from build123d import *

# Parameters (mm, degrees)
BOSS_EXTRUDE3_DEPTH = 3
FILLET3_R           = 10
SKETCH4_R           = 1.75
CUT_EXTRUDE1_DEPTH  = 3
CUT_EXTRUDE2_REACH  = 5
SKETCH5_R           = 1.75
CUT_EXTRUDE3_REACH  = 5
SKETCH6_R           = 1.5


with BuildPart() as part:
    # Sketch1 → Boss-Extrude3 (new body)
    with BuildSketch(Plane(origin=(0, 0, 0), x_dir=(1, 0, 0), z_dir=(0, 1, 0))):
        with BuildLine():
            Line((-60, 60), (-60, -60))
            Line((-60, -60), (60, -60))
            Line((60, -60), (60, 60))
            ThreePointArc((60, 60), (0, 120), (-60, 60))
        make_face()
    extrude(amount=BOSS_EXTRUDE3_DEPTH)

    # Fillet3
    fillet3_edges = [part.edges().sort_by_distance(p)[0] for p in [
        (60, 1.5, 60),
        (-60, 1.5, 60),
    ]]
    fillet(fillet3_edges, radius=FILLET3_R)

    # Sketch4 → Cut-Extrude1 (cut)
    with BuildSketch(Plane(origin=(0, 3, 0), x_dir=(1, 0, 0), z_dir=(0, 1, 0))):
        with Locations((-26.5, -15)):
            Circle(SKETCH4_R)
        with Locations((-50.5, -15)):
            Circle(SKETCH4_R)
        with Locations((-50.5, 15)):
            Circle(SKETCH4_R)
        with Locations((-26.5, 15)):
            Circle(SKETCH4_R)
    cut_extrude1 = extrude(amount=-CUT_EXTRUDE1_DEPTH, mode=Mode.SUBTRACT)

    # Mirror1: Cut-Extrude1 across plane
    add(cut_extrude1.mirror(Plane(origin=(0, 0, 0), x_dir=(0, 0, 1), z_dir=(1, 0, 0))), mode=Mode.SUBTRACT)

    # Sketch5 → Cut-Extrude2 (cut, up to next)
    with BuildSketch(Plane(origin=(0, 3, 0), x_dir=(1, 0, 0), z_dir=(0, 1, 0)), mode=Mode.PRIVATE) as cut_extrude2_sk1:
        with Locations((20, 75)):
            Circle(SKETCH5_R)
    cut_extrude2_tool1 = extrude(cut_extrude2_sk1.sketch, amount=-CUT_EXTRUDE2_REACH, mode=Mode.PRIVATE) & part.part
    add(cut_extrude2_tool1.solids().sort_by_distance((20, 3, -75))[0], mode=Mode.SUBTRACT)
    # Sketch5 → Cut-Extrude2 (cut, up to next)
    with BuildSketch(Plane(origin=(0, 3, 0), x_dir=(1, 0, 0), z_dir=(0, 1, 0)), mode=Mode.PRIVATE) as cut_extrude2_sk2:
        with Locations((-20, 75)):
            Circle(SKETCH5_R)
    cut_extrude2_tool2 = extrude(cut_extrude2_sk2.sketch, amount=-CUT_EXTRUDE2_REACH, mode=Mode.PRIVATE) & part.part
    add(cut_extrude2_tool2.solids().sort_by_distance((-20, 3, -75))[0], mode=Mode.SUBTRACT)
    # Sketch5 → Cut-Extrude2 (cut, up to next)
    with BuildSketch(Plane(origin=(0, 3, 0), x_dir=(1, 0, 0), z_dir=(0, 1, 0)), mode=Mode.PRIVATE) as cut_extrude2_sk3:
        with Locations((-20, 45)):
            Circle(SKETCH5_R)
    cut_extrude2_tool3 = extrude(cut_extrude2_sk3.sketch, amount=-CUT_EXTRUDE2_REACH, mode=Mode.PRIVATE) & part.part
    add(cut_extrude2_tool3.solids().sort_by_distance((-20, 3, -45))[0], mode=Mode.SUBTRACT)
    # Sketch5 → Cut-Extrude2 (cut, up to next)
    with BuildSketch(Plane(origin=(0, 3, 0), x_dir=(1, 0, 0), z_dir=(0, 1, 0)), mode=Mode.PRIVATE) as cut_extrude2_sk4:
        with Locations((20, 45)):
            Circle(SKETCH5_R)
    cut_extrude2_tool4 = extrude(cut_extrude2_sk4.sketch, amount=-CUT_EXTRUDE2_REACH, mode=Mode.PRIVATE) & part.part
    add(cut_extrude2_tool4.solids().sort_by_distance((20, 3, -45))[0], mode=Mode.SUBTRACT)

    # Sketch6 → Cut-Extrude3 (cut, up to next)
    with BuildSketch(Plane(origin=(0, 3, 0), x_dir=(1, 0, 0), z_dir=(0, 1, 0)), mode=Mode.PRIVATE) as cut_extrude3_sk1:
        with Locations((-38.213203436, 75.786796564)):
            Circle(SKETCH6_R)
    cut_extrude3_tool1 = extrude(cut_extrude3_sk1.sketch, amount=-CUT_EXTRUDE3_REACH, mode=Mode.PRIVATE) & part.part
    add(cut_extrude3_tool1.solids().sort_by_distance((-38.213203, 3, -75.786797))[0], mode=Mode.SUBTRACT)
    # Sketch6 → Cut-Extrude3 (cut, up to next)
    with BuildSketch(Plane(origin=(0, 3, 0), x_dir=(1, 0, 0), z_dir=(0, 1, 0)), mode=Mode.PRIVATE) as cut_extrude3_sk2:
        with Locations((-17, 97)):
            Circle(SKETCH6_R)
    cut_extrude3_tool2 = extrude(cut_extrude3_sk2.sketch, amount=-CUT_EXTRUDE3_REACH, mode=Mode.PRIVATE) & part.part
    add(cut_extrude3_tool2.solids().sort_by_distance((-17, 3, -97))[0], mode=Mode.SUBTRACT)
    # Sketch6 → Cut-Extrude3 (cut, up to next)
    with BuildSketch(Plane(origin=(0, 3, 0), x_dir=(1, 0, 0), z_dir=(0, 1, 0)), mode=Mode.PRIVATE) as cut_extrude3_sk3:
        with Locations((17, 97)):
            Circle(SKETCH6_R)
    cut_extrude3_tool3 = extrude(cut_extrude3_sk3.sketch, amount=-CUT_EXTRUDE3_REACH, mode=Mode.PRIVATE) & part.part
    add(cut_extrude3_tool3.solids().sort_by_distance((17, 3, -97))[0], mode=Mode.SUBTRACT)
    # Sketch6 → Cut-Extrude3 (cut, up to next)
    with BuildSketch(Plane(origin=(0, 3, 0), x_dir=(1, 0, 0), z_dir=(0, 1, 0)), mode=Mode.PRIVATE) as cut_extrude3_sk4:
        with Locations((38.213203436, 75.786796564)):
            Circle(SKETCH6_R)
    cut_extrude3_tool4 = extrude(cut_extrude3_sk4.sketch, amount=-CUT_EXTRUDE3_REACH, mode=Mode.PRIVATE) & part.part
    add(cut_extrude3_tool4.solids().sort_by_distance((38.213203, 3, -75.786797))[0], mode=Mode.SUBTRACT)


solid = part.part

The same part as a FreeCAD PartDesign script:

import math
import FreeCAD as App
import Part
import Sketcher

V = App.Vector


def edges_at(feature, points):
    """Names of the edges that pass closest to the given points."""
    edges = feature.Shape.Edges
    near = lambda p: min(range(len(edges)), key=lambda i: edges[i].distToShape(Part.Vertex(*p))[0])
    return sorted({f"Edge{near(p) + 1}" for p in points})

doc = App.newDocument("Part")
params = doc.addObject("Spreadsheet::Sheet", "Params")
for row, (alias, value) in enumerate([
    ("sketch1_radius", "60 mm"),
    ("pad1_length", "3 mm"),
    ("fillet_radius", "10 mm"),
    ("sketch2_diameter", "3.5 mm"),
    ("pocket1_length", "3 mm"),
    ("sketch3_diameter", "3.5 mm"),
    ("sketch4_diameter", "3.5 mm"),
    ("sketch5_diameter", "3.5 mm"),
    ("sketch6_diameter", "3.5 mm"),
    ("sketch7_diameter", "3 mm"),
    ("sketch8_diameter", "3 mm"),
    ("sketch9_diameter", "3 mm"),
    ("sketch10_diameter", "3 mm"),
], start=1):
    params.set(f"A{row}", alias)
    params.set(f"B{row}", "=" + value)
    params.setAlias(f"B{row}", alias)

body = doc.addObject("PartDesign::Body", "Body")

sketch1 = body.newObject("Sketcher::SketchObject", "Sketch")
sketch1.AttachmentSupport = (doc.getObject("XZ_Plane"), [""])
sketch1.MapMode = "FlatFace"
sketch1.addGeometry(Part.LineSegment(V(-60, -60, 0), V(-60, 60, 0)), False)
sketch1.addGeometry(Part.LineSegment(V(-60, 60, 0), V(60, 60, 0)), False)
sketch1.addGeometry(Part.LineSegment(V(60, 60, 0), V(60, -60, 0)), False)
sketch1.addGeometry(Part.ArcOfCircle(Part.Circle(V(0, -60, 0), V(0, 0, 1), 60), math.radians(180), math.radians(360)), False)
sketch1.addConstraint(Sketcher.Constraint("Coincident", 0, 2, 1, 1))
sketch1.addConstraint(Sketcher.Constraint("Coincident", 1, 2, 2, 1))
sketch1.addConstraint(Sketcher.Constraint("Tangent", 2, 2, 3, 2))
sketch1.addConstraint(Sketcher.Constraint("Tangent", 3, 1, 0, 1))
sketch1.addConstraint(Sketcher.Constraint("Vertical", 0))
sketch1.addConstraint(Sketcher.Constraint("Horizontal", 1))
sketch1.addConstraint(Sketcher.Constraint("Vertical", 2))
sketch1.addConstraint(Sketcher.Constraint("Symmetric", 0, 2, 2, 2, -1, 1))
sketch1.addConstraint(Sketcher.Constraint("Equal", 1, 0))
sketch1.addConstraint(Sketcher.Constraint("Radius", 3, 60.0))
sketch1.setExpression("Constraints[9]", "Params.sketch1_radius")
pad1 = body.newObject("PartDesign::Pad", "Pad")
pad1.Profile = sketch1
pad1.setExpression("Length", "Params.pad1_length")
pad1.Reversed = True
doc.recompute()

fillet = body.newObject("PartDesign::Fillet", "Fillet")
fillet.Base = (pad1, edges_at(pad1, [(60, 1.5, 60), (-60, 1.5, 60)]))
fillet.setExpression("Radius", "Params.fillet_radius")

sketch2 = body.newObject("Sketcher::SketchObject", "Sketch001")
sketch2.AttachmentSupport = (doc.getObject("XZ_Plane"), [""])
sketch2.MapMode = "FlatFace"
sketch2.AttachmentOffset = App.Placement(V(0, 0, -3), App.Rotation())
sketch2.addGeometry(Part.Circle(V(-26.5, 15, 0), V(0, 0, 1), 1.8), False)
sketch2.addGeometry(Part.Circle(V(-50.5, 15, 0), V(0, 0, 1), 1.8), False)
sketch2.addGeometry(Part.Circle(V(-50.5, -15, 0), V(0, 0, 1), 1.8), False)
sketch2.addGeometry(Part.Circle(V(-26.5, -15, 0), V(0, 0, 1), 1.8), False)
sketch2.addConstraint(Sketcher.Constraint("Equal", 0, 1))
sketch2.addConstraint(Sketcher.Constraint("Equal", 1, 2))
sketch2.addConstraint(Sketcher.Constraint("Equal", 2, 3))
sketch2.addConstraint(Sketcher.Constraint("Symmetric", 1, 3, 2, 3, -1))
sketch2.addConstraint(Sketcher.Constraint("Symmetric", 0, 3, 3, 3, -1))
sketch2.addConstraint(Sketcher.Constraint("Horizontal", 0, 3, 1, 3))
sketch2.addConstraint(Sketcher.Constraint("Diameter", 0, 3.5))
sketch2.addConstraint(Sketcher.Constraint("DistanceY", -1, 1, 0, 3, 15.0))
sketch2.addConstraint(Sketcher.Constraint("DistanceX", 1, 3, 0, 3, 24.0))
sketch2.addConstraint(Sketcher.Constraint("DistanceX", 0, 3, -1, 1, 26.5))
sketch2.setExpression("Constraints[6]", "Params.sketch2_diameter")
pocket1 = body.newObject("PartDesign::Pocket", "Pocket")
pocket1.Profile = sketch2
pocket1.setExpression("Length", "Params.pocket1_length")
pocket1.Reversed = True
doc.recompute()

mirrored = body.newObject("PartDesign::Mirrored", "Mirrored")
mirrored.Originals = [pocket1]
mirrored.MirrorPlane = (doc.getObject("YZ_Plane"), [""])
body.Tip = mirrored

sketch3 = body.newObject("Sketcher::SketchObject", "Sketch002")
sketch3.AttachmentSupport = (doc.getObject("XZ_Plane"), [""])
sketch3.MapMode = "FlatFace"
sketch3.AttachmentOffset = App.Placement(V(0, 0, -3), App.Rotation())
sketch3.addGeometry(Part.Circle(V(20, -75, 0), V(0, 0, 1), 1.8), False)
sketch3.addConstraint(Sketcher.Constraint("Diameter", 0, 3.5))
sketch3.addConstraint(Sketcher.Constraint("DistanceX", -1, 1, 0, 3, 20.0))
sketch3.addConstraint(Sketcher.Constraint("DistanceY", 0, 3, -1, 1, 75.0))
sketch3.setExpression("Constraints[0]", "Params.sketch3_diameter")
pocket2 = body.newObject("PartDesign::Pocket", "Pocket001")
pocket2.Profile = sketch3
pocket2.Type = "UpToFirst"
pocket2.Reversed = True

sketch4 = body.newObject("Sketcher::SketchObject", "Sketch003")
sketch4.AttachmentSupport = (doc.getObject("XZ_Plane"), [""])
sketch4.MapMode = "FlatFace"
sketch4.AttachmentOffset = App.Placement(V(0, 0, -3), App.Rotation())
sketch4.addGeometry(Part.Circle(V(-20, -75, 0), V(0, 0, 1), 1.8), False)
sketch4.addConstraint(Sketcher.Constraint("Diameter", 0, 3.5))
sketch4.addConstraint(Sketcher.Constraint("DistanceX", 0, 3, -1, 1, 20.0))
sketch4.addConstraint(Sketcher.Constraint("DistanceY", 0, 3, -1, 1, 75.0))
sketch4.setExpression("Constraints[0]", "Params.sketch4_diameter")
pocket3 = body.newObject("PartDesign::Pocket", "Pocket002")
pocket3.Profile = sketch4
pocket3.Type = "UpToFirst"
pocket3.Reversed = True

sketch5 = body.newObject("Sketcher::SketchObject", "Sketch004")
sketch5.AttachmentSupport = (doc.getObject("XZ_Plane"), [""])
sketch5.MapMode = "FlatFace"
sketch5.AttachmentOffset = App.Placement(V(0, 0, -3), App.Rotation())
sketch5.addGeometry(Part.Circle(V(-20, -45, 0), V(0, 0, 1), 1.8), False)
sketch5.addConstraint(Sketcher.Constraint("Diameter", 0, 3.5))
sketch5.addConstraint(Sketcher.Constraint("DistanceX", 0, 3, -1, 1, 20.0))
sketch5.addConstraint(Sketcher.Constraint("DistanceY", 0, 3, -1, 1, 45.0))
sketch5.setExpression("Constraints[0]", "Params.sketch5_diameter")
pocket4 = body.newObject("PartDesign::Pocket", "Pocket003")
pocket4.Profile = sketch5
pocket4.Type = "UpToFirst"
pocket4.Reversed = True

sketch6 = body.newObject("Sketcher::SketchObject", "Sketch005")
sketch6.AttachmentSupport = (doc.getObject("XZ_Plane"), [""])
sketch6.MapMode = "FlatFace"
sketch6.AttachmentOffset = App.Placement(V(0, 0, -3), App.Rotation())
sketch6.addGeometry(Part.Circle(V(20, -45, 0), V(0, 0, 1), 1.8), False)
sketch6.addConstraint(Sketcher.Constraint("Diameter", 0, 3.5))
sketch6.addConstraint(Sketcher.Constraint("DistanceX", -1, 1, 0, 3, 20.0))
sketch6.addConstraint(Sketcher.Constraint("DistanceY", 0, 3, -1, 1, 45.0))
sketch6.setExpression("Constraints[0]", "Params.sketch6_diameter")
pocket5 = body.newObject("PartDesign::Pocket", "Pocket004")
pocket5.Profile = sketch6
pocket5.Type = "UpToFirst"
pocket5.Reversed = True

sketch7 = body.newObject("Sketcher::SketchObject", "Sketch006")
sketch7.AttachmentSupport = (doc.getObject("XZ_Plane"), [""])
sketch7.MapMode = "FlatFace"
sketch7.AttachmentOffset = App.Placement(V(0, 0, -3), App.Rotation())
sketch7.addGeometry(Part.Circle(V(-38.2, -75.8, 0), V(0, 0, 1), 1.5), False)
sketch7.addConstraint(Sketcher.Constraint("Diameter", 0, 3.0))
sketch7.addConstraint(Sketcher.Constraint("DistanceX", 0, 3, -1, 1, 38.213203))
sketch7.addConstraint(Sketcher.Constraint("DistanceY", 0, 3, -1, 1, 75.786797))
sketch7.setExpression("Constraints[0]", "Params.sketch7_diameter")
pocket6 = body.newObject("PartDesign::Pocket", "Pocket005")
pocket6.Profile = sketch7
pocket6.Type = "UpToFirst"
pocket6.Reversed = True

sketch8 = body.newObject("Sketcher::SketchObject", "Sketch007")
sketch8.AttachmentSupport = (doc.getObject("XZ_Plane"), [""])
sketch8.MapMode = "FlatFace"
sketch8.AttachmentOffset = App.Placement(V(0, 0, -3), App.Rotation())
sketch8.addGeometry(Part.Circle(V(-17, -97, 0), V(0, 0, 1), 1.5), False)
sketch8.addConstraint(Sketcher.Constraint("Diameter", 0, 3.0))
sketch8.addConstraint(Sketcher.Constraint("DistanceX", 0, 3, -1, 1, 17.0))
sketch8.addConstraint(Sketcher.Constraint("DistanceY", 0, 3, -1, 1, 97.0))
sketch8.setExpression("Constraints[0]", "Params.sketch8_diameter")
pocket7 = body.newObject("PartDesign::Pocket", "Pocket006")
pocket7.Profile = sketch8
pocket7.Type = "UpToFirst"
pocket7.Reversed = True

sketch9 = body.newObject("Sketcher::SketchObject", "Sketch008")
sketch9.AttachmentSupport = (doc.getObject("XZ_Plane"), [""])
sketch9.MapMode = "FlatFace"
sketch9.AttachmentOffset = App.Placement(V(0, 0, -3), App.Rotation())
sketch9.addGeometry(Part.Circle(V(17, -97, 0), V(0, 0, 1), 1.5), False)
sketch9.addConstraint(Sketcher.Constraint("Diameter", 0, 3.0))
sketch9.addConstraint(Sketcher.Constraint("DistanceX", -1, 1, 0, 3, 17.0))
sketch9.addConstraint(Sketcher.Constraint("DistanceY", 0, 3, -1, 1, 97.0))
sketch9.setExpression("Constraints[0]", "Params.sketch9_diameter")
pocket8 = body.newObject("PartDesign::Pocket", "Pocket007")
pocket8.Profile = sketch9
pocket8.Type = "UpToFirst"
pocket8.Reversed = True

sketch10 = body.newObject("Sketcher::SketchObject", "Sketch009")
sketch10.AttachmentSupport = (doc.getObject("XZ_Plane"), [""])
sketch10.MapMode = "FlatFace"
sketch10.AttachmentOffset = App.Placement(V(0, 0, -3), App.Rotation())
sketch10.addGeometry(Part.Circle(V(38.2, -75.8, 0), V(0, 0, 1), 1.5), False)
sketch10.addConstraint(Sketcher.Constraint("Diameter", 0, 3.0))
sketch10.addConstraint(Sketcher.Constraint("DistanceX", -1, 1, 0, 3, 38.213203))
sketch10.addConstraint(Sketcher.Constraint("DistanceY", 0, 3, -1, 1, 75.786797))
sketch10.setExpression("Constraints[0]", "Params.sketch10_diameter")
pocket9 = body.newObject("PartDesign::Pocket", "Pocket008")
pocket9.Profile = sketch10
pocket9.Type = "UpToFirst"
pocket9.Reversed = True

doc.recompute()
